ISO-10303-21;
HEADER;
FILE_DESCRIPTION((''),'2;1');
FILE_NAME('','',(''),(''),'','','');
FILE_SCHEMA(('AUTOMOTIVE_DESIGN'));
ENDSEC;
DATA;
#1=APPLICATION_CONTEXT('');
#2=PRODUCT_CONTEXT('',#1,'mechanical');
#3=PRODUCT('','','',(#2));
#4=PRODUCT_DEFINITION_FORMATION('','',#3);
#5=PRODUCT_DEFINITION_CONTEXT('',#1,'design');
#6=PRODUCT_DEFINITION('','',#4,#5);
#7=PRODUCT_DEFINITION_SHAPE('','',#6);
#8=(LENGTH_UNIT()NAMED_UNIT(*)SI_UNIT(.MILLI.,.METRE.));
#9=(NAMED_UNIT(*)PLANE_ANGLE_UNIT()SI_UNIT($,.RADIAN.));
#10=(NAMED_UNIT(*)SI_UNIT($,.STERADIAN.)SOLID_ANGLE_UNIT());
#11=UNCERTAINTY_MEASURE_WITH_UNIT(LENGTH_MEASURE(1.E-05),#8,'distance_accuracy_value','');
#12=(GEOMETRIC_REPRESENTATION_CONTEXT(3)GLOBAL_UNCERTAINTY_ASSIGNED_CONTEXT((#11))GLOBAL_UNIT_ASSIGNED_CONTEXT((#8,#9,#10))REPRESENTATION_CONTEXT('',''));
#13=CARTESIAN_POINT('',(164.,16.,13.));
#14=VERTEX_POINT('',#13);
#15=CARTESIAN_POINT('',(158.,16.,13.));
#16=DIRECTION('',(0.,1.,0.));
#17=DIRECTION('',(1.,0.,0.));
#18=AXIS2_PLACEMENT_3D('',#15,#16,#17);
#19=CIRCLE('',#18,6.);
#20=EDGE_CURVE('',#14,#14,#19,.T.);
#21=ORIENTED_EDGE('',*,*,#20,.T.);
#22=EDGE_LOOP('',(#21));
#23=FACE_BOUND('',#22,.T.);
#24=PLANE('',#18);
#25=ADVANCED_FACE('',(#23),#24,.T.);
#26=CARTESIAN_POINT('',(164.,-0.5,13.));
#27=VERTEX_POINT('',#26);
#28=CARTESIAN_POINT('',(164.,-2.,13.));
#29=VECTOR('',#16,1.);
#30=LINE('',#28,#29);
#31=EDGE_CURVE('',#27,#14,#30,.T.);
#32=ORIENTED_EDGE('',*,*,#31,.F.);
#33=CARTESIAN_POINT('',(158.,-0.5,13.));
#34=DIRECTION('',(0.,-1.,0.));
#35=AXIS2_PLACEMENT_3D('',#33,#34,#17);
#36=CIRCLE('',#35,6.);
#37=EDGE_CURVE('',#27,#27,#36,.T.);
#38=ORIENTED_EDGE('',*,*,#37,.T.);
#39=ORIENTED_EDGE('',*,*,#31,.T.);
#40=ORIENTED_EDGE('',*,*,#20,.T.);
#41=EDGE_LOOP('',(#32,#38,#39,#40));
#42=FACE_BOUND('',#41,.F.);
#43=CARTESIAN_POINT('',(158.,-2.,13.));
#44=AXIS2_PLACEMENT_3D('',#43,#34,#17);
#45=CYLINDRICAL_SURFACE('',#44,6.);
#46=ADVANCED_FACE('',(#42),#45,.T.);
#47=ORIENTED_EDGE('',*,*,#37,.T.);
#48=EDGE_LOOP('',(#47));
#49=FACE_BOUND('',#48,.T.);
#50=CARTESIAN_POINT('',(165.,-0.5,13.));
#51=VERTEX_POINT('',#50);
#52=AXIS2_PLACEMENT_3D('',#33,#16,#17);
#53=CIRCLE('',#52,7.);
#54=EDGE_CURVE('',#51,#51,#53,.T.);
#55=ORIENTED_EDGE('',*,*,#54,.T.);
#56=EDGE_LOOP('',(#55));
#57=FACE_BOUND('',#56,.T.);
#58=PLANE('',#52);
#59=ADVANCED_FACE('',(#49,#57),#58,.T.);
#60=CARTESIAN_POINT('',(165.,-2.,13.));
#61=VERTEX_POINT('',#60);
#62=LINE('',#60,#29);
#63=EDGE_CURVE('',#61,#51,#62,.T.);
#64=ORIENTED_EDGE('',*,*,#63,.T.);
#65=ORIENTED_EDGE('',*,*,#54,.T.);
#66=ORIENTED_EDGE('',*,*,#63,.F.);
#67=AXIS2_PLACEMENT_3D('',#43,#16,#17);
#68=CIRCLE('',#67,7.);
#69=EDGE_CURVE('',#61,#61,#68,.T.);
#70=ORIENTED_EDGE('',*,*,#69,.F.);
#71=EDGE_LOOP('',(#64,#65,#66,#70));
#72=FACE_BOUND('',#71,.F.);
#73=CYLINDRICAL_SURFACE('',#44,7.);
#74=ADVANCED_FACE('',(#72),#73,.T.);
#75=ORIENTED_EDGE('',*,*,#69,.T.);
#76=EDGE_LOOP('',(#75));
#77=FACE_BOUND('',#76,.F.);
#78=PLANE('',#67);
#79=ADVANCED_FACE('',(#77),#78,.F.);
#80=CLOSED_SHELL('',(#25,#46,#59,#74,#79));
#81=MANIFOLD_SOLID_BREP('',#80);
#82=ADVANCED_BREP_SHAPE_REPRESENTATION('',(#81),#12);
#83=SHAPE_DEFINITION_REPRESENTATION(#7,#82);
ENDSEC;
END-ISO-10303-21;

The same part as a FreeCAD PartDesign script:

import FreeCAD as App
import Part
import Sketcher

doc = App.newDocument("Part")
params = doc.addObject("Spreadsheet::Sheet", "Params")
for row, (alias, value) in enumerate([
    ("sketch1_diameter", "14 mm"),
    ("pad1_length", "1.5 mm"),
    ("sketch2_diameter", "12 mm"),
    ("pad2_length", "18 mm"),
], start=1):
    params.set(f"A{row}", alias)
    params.set(f"B{row}", "=" + value)
    params.setAlias(f"B{row}", alias)

body = doc.addObject("PartDesign::Body", "Body")

# Sketch on XY plane
sketch1 = body.newObject("Sketcher::SketchObject", "Sketch")
sketch1.AttachmentSupport = (doc.getObject("XY_Plane"), [""])
sketch1.MapMode = "FlatFace"
sketch1.addGeometry(Part.Circle(App.Vector(0, 0, 0), App.Vector(0, 0, 1), 7), False)
sketch1.addConstraint([
    Sketcher.Constraint("Coincident", 0, 3, -1, 1),
    Sketcher.Constraint("Diameter", 0, 14.0),
])
sketch1.setExpression("Constraints[1]", "Params.sketch1_diameter")
pad1 = body.newObject("PartDesign::Pad", "Pad")
pad1.Profile = sketch1
pad1.setExpression("Length", "Params.pad1_length")
body2 = doc.addObject("PartDesign::Body", "Body001")

# Sketch on XY plane
sketch2 = body2.newObject("Sketcher::SketchObject", "Sketch001")
sketch2.AttachmentSupport = (doc.getObject("XY_Plane001"), [""])
sketch2.MapMode = "FlatFace"
sketch2.addGeometry(Part.Circle(App.Vector(0, 0, 0), App.Vector(0, 0, 1), 6), False)
sketch2.addConstraint([
    Sketcher.Constraint("Coincident", 0, 3, -1, 1),
    Sketcher.Constraint("Diameter", 0, 12.0),
])
sketch2.setExpression("Constraints[1]", "Params.sketch2_diameter")
pad2 = body2.newObject("PartDesign::Pad", "Pad001")
pad2.Profile = sketch2
pad2.setExpression("Length", "Params.pad2_length")
doc.recompute()

boolean = body2.newObject("PartDesign::Boolean", "Boolean")
boolean.Type = "Fuse"
boolean.addObjects([body])
body3 = doc.addObject("PartDesign::Body", "Body002")
doc.recompute()

body2.Placement = App.Placement(App.Vector(158, -2, 13), App.Rotation(App.Vector(1, 0, 0), 270))
boolean2 = body3.newObject("PartDesign::Boolean", "Boolean001")
boolean2.Type = "Fuse"
boolean2.addObjects([body2])

doc.recompute()
